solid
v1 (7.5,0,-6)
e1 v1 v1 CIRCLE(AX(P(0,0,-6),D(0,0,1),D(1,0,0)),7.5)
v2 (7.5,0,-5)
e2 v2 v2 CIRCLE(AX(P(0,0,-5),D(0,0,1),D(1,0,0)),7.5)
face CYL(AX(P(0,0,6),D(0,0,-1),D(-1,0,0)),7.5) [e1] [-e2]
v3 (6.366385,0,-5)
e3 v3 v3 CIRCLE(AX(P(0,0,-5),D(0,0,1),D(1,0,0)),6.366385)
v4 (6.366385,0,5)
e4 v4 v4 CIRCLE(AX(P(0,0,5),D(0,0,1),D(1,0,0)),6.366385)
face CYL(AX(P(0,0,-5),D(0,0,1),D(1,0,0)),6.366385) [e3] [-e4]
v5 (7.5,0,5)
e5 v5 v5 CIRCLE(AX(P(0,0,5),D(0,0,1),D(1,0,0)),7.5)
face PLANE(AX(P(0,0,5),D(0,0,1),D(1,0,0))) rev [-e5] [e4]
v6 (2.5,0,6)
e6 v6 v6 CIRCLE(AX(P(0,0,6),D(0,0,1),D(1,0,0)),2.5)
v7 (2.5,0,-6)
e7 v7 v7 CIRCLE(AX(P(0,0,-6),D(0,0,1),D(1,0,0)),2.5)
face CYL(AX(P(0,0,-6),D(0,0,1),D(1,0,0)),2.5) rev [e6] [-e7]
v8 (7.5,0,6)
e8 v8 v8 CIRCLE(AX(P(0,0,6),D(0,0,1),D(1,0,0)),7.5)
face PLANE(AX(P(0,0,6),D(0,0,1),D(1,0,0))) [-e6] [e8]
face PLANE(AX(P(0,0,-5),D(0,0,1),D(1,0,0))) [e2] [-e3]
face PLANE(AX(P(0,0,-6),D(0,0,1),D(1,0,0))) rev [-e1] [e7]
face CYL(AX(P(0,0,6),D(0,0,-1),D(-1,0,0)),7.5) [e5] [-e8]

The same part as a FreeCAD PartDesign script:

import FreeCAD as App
import Part
import Sketcher

doc = App.newDocument("Part")
params = doc.addObject("Spreadsheet::Sheet", "Params")
for row, (alias, value) in enumerate([
    ("sketch1_diameter", "15 mm"),
    ("pad1_length", "12 mm"),
    ("sketch2_diameter", "15 mm"),
    ("pocket1_length", "10 mm"),
    ("sketch3_diameter", "5 mm"),
    ("pocket2_length", "12 mm"),
], start=1):
    params.set(f"A{row}", alias)
    params.set(f"B{row}", "=" + value)
    params.setAlias(f"B{row}", alias)

body = doc.addObject("PartDesign::Body", "Body")

sketch1 = body.newObject("Sketcher::SketchObject", "Sketch")
sketch1.AttachmentSupport = (doc.getObject("XY_Plane"), [""])
sketch1.MapMode = "FlatFace"
sketch1.addGeometry(Part.Circle(App.Vector(0, 0, 0), App.Vector(0, 0, 1), 8), False)
sketch1.addConstraint(Sketcher.Constraint("Coincident", 0, 3, -1, 1))
sketch1.addConstraint(Sketcher.Constraint("Diameter", 0, 15.0))
sketch1.setExpression("Constraints[1]", "Params.sketch1_diameter")
pad1 = body.newObject("PartDesign::Pad", "Pad")
pad1.Profile = sketch1
pad1.setExpression("Length", "Params.pad1_length")
pad1.Midplane = True

sketch2 = body.newObject("Sketcher::SketchObject", "Sketch001")
sketch2.AttachmentSupport = (doc.getObject("XY_Plane"), [""])
sketch2.MapMode = "FlatFace"
sketch2.addGeometry(Part.Circle(App.Vector(0, 0, 0), App.Vector(0, 0, 1), 8), False)
sketch2.addGeometry(Part.Circle(App.Vector(0, 0, 0), App.Vector(0, 0, 1), 6), False)
sketch2.addConstraint(Sketcher.Constraint("Coincident", 0, 3, -1, 1))
sketch2.addConstraint(Sketcher.Constraint("Coincident", 1, 3, -1, 1))
sketch2.addConstraint(Sketcher.Constraint("Diameter", 0, 15.0))
sketch2.addConstraint(Sketcher.Constraint("Diameter", 1, 12.732771))
sketch2.setExpression("Constraints[2]", "Params.sketch2_diameter")
pocket1 = body.newObject("PartDesign::Pocket", "Pocket")
pocket1.Profile = sketch2
pocket1.setExpression("Length", "Params.pocket1_length")
pocket1.Midplane = True

sketch3 = body.newObject("Sketcher::SketchObject", "Sketch002")
sketch3.AttachmentSupport = (doc.getObject("XY_Plane"), [""])
sketch3.MapMode = "FlatFace"
sketch3.addGeometry(Part.Circle(App.Vector(0, 0, 0), App.Vector(0, 0, 1), 2.5), False)
sketch3.addConstraint(Sketcher.Constraint("Coincident", 0, 3, -1, 1))
sketch3.addConstraint(Sketcher.Constraint("Diameter", 0, 5.0))
sketch3.setExpression("Constraints[1]", "Params.sketch3_diameter")
pocket2 = body.newObject("PartDesign::Pocket", "Pocket001")
pocket2.Profile = sketch3
pocket2.setExpression("Length", "Params.pocket2_length")
pocket2.Midplane = True

doc.recompute()
